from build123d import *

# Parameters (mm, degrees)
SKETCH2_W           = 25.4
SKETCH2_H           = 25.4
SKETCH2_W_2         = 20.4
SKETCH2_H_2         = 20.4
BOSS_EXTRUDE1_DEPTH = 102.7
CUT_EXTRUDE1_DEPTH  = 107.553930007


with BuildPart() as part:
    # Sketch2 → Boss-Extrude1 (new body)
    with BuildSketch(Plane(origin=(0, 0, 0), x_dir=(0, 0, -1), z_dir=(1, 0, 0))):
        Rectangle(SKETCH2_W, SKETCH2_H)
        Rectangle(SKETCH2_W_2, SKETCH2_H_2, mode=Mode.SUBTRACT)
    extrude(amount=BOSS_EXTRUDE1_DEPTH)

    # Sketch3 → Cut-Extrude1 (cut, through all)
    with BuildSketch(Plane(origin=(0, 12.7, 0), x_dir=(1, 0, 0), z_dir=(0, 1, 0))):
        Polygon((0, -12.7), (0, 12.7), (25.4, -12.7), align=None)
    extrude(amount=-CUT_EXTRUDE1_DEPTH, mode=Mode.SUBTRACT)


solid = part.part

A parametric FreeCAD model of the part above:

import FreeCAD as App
import Part
import Sketcher
Q = App.Units.Quantity


def add_polygon(sketch, points):
    """Adds a closed chain of lines whose ends are joined by coincident constraints."""
    first, n = sketch.GeometryCount, len(points)
    for a, b in zip(points, points[1:] + points[:1]):
        sketch.addGeometry(Part.LineSegment(App.Vector(*a, 0), App.Vector(*b, 0)), False)
    for i in range(n):
        sketch.addConstraint(Sketcher.Constraint("Coincident", first + i, 2, first + (i + 1) % n, 1))

doc = App.newDocument("Part")
body = doc.addObject("PartDesign::Body", "Body")

# Sketch on YZ plane
sketch1 = body.newObject("Sketcher::SketchObject", "Sketch")
sketch1.AttachmentSupport = (doc.getObject("YZ_Plane"), [""])
sketch1.MapMode = "FlatFace"
add_polygon(sketch1, [(13, 13), (-13, 13), (-13, -13), (13, -13)])  # lines 0-3
add_polygon(sketch1, [(-10, -10), (-10, 10), (10, 10), (10, -10)])  # lines 4-7
sketch1.addConstraint([
    Sketcher.Constraint("Horizontal", 0),
    Sketcher.Constraint("Vertical", 1),
    Sketcher.Constraint("Horizontal", 2),
    Sketcher.Constraint("Vertical", 3),
    Sketcher.Constraint("Vertical", 4),
    Sketcher.Constraint("Horizontal", 5),
    Sketcher.Constraint("Vertical", 6),
    Sketcher.Constraint("Horizontal", 7),
    Sketcher.Constraint("Symmetric", 0, 2, 2, 2, -1, 1),
    Sketcher.Constraint("Symmetric", 4, 2, 6, 2, -1, 1),
    Sketcher.Constraint("Equal", 2, 1),
    Sketcher.Constraint("Equal", 7, 4),
    Sketcher.Constraint("DistanceX", 0, 2, 0, 1, Q("25.4 mm")),
    Sketcher.Constraint("DistanceX", 5, 1, 5, 2, Q("20.4 mm")),
])
pad1 = body.newObject("PartDesign::Pad", "Pad")
pad1.Profile = sketch1
pad1.Length = 102.7

# Sketch on XZ plane
sketch2 = body.newObject("Sketcher::SketchObject", "Sketch001")
sketch2.AttachmentSupport = (doc.getObject("XZ_Plane"), [""])
sketch2.MapMode = "FlatFace"
sketch2.AttachmentOffset = App.Placement(App.Vector(0, 0, -12.7), App.Rotation())
add_polygon(sketch2, [(0, -13), (0, 13), (25, 13)])  # lines 0-2
sketch2.addConstraint([
    Sketcher.Constraint("Vertical", 0),
    Sketcher.Constraint("Horizontal", 1),
    Sketcher.Constraint("Symmetric", 0, 2, 2, 2, -1, 1),
    Sketcher.Constraint("Equal", 1, 0),
    Sketcher.Constraint("DistanceX", 1, 1, 1, 2, Q("25.4 mm")),
])
pocket1 = body.newObject("PartDesign::Pocket", "Pocket")
pocket1.Profile = sketch2
pocket1.Type = "ThroughAll"
pocket1.Reversed = True

doc.recompute()
